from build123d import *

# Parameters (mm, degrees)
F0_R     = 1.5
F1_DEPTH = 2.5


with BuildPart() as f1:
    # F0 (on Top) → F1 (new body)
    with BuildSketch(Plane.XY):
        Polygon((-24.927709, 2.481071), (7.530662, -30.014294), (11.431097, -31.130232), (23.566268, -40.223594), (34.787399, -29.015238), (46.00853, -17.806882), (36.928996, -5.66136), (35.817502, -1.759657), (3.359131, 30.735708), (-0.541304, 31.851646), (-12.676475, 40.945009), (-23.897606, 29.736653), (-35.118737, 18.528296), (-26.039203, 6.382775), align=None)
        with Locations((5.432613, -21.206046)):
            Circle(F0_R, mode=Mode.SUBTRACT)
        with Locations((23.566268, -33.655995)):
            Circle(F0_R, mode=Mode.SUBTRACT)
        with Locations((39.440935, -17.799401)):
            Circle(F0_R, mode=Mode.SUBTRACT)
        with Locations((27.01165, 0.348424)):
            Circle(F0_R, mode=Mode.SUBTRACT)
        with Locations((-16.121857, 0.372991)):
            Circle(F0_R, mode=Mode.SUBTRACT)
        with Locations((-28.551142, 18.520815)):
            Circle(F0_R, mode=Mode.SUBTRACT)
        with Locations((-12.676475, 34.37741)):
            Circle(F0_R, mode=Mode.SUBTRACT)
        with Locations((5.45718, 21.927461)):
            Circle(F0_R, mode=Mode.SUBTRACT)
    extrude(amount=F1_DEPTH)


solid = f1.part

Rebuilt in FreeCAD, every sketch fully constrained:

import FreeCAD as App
import Part
import Sketcher

doc = App.newDocument("Part")
body = doc.addObject("PartDesign::Body", "Body")

sketch1 = body.newObject("Sketcher::SketchObject", "Sketch")
sketch1.AttachmentSupport = (doc.getObject("XY_Plane"), [""])
sketch1.MapMode = "FlatFace"
sketch1.addGeometry(Part.LineSegment(App.Vector(-24.9, 2.5, 0), App.Vector(7.5, -30, 0)), False)
sketch1.addGeometry(Part.LineSegment(App.Vector(7.5, -30, 0), App.Vector(11.4, -31.1, 0)), False)
sketch1.addGeometry(Part.LineSegment(App.Vector(11.4, -31.1, 0), App.Vector(23.6, -40.2, 0)), False)
sketch1.addGeometry(Part.LineSegment(App.Vector(23.6, -40.2, 0), App.Vector(46, -17.8, 0)), False)
sketch1.addGeometry(Part.LineSegment(App.Vector(46, -17.8, 0), App.Vector(36.9, -5.7, 0)), False)
sketch1.addGeometry(Part.LineSegment(App.Vector(36.9, -5.7, 0), App.Vector(35.8, -1.8, 0)), False)
sketch1.addGeometry(Part.LineSegment(App.Vector(35.8, -1.8, 0), App.Vector(3.4, 30.7, 0)), False)
sketch1.addGeometry(Part.LineSegment(App.Vector(3.4, 30.7, 0), App.Vector(-0.5, 31.9, 0)), False)
sketch1.addGeometry(Part.LineSegment(App.Vector(-0.5, 31.9, 0), App.Vector(-12.7, 40.9, 0)), False)
sketch1.addGeometry(Part.LineSegment(App.Vector(-12.7, 40.9, 0), App.Vector(-23.9, 29.7, 0)), False)
sketch1.addGeometry(Part.LineSegment(App.Vector(-23.9, 29.7, 0), App.Vector(-35.1, 18.5, 0)), False)
sketch1.addGeometry(Part.LineSegment(App.Vector(-35.1, 18.5, 0), App.Vector(-26, 6.4, 0)), False)
sketch1.addGeometry(Part.LineSegment(App.Vector(-26, 6.4, 0), App.Vector(-24.9, 2.5, 0)), False)
sketch1.addGeometry(Part.Circle(App.Vector(5.4, -21.2, 0), App.Vector(0, 0, 1), 1.5), False)
sketch1.addGeometry(Part.Circle(App.Vector(23.6, -33.7, 0), App.Vector(0, 0, 1), 1.5), False)
sketch1.addGeometry(Part.Circle(App.Vector(39.4, -17.8, 0), App.Vector(0, 0, 1), 1.5), False)
sketch1.addGeometry(Part.Circle(App.Vector(27, 0.3, 0), App.Vector(0, 0, 1), 1.5), False)
sketch1.addGeometry(Part.Circle(App.Vector(-16.1, 0.4, 0), App.Vector(0, 0, 1), 1.5), False)
sketch1.addGeometry(Part.Circle(App.Vector(-28.6, 18.5, 0), App.Vector(0, 0, 1), 1.5), False)
sketch1.addGeometry(Part.Circle(App.Vector(-12.7, 34.4, 0), App.Vector(0, 0, 1), 1.5), False)
sketch1.addGeometry(Part.Circle(App.Vector(5.5, 21.9, 0), App.Vector(0, 0, 1), 1.5), False)
sketch1.addConstraint(Sketcher.Constraint("Coincident", 0, 2, 1, 1))
sketch1.addConstraint(Sketcher.Constraint("Coincident", 1, 2, 2, 1))
sketch1.addConstraint(Sketcher.Constraint("Coincident", 2, 2, 3, 1))
sketch1.addConstraint(Sketcher.Constraint("Coincident", 3, 2, 4, 1))
sketch1.addConstraint(Sketcher.Constraint("Coincident", 4, 2, 5, 1))
sketch1.addConstraint(Sketcher.Constraint("Coincident", 5, 2, 6, 1))
sketch1.addConstraint(Sketcher.Constraint("Coincident", 6, 2, 7, 1))
sketch1.addConstraint(Sketcher.Constraint("Coincident", 7, 2, 8, 1))
sketch1.addConstraint(Sketcher.Constraint("Coincident", 8, 2, 9, 1))
sketch1.addConstraint(Sketcher.Constraint("Coincident", 9, 2, 10, 1))
sketch1.addConstraint(Sketcher.Constraint("Coincident", 10, 2, 11, 1))
sketch1.addConstraint(Sketcher.Constraint("Coincident", 11, 2, 12, 1))
sketch1.addConstraint(Sketcher.Constraint("Coincident", 12, 2, 0, 1))
sketch1.addConstraint(Sketcher.Constraint("Equal", 13, 14))
sketch1.addConstraint(Sketcher.Constraint("Equal", 14, 15))
sketch1.addConstraint(Sketcher.Constraint("Equal", 15, 16))
sketch1.addConstraint(Sketcher.Constraint("Equal", 16, 17))
sketch1.addConstraint(Sketcher.Constraint("Equal", 17, 18))
sketch1.addConstraint(Sketcher.Constraint("Equal", 18, 19))
sketch1.addConstraint(Sketcher.Constraint("Equal", 19, 20))
sketch1.addConstraint(Sketcher.Constraint("Perpendicular", 0, 3))
sketch1.addConstraint(Sketcher.Constraint("Perpendicular", 3, 6))
sketch1.addConstraint(Sketcher.Constraint("Parallel", 1, 7))
sketch1.addConstraint(Sketcher.Constraint("Parallel", 2, 8))
sketch1.addConstraint(Sketcher.Constraint("Perpendicular", 6, 9))
sketch1.addConstraint(Sketcher.Constraint("Parallel", 9, 10))
sketch1.addConstraint(Sketcher.Constraint("Parallel", 4, 11))
sketch1.addConstraint(Sketcher.Constraint("Parallel", 5, 12))
sketch1.addConstraint(Sketcher.Constraint("Vertical", 14, 3, 2, 2))
sketch1.addConstraint(Sketcher.Constraint("Vertical", 19, 3, 8, 2))
sketch1.addConstraint(Sketcher.Constraint("Equal", 2, 4))
sketch1.addConstraint(Sketcher.Constraint("Equal", 1, 5))
sketch1.addConstraint(Sketcher.Constraint("Equal", 0, 6))
sketch1.addConstraint(Sketcher.Constraint("Equal", 5, 7))
sketch1.addConstraint(Sketcher.Constraint("Equal", 4, 8))
sketch1.addConstraint(Sketcher.Constraint("Equal", 9, 10))
sketch1.addConstraint(Sketcher.Constraint("Equal", 8, 11))
sketch1.addConstraint(Sketcher.Constraint("Diameter", 13, 3.0))
sketch1.addConstraint(Sketcher.Constraint("DistanceY", 15, 3, -1, 1, 17.799401))
sketch1.addConstraint(Sketcher.Constraint("DistanceX", -1, 1, 5, 2, 35.817502))
sketch1.addConstraint(Sketcher.Constraint("DistanceY", 14, 3, 0, 2, 3.641701))
sketch1.addConstraint(Sketcher.Constraint("DistanceY", 2, 2, 14, 3, 6.567599))
sketch1.addConstraint(Sketcher.Constraint("DistanceY", 6, 2, 19, 3, 3.641702))
sketch1.addConstraint(Sketcher.Constraint("DistanceX", 9, 2, 7, 2, 23.356302))
sketch1.addConstraint(Sketcher.Constraint("Distance", 3, 31.72009))
sketch1.addConstraint(Sketcher.Constraint("DistanceX", -1, 1, 14, 3, 23.566268))
sketch1.addConstraint(Sketcher.Constraint("DistanceX", -1, 1, 16, 3, 27.01165))
sketch1.addConstraint(Sketcher.Constraint("DistanceY", -1, 1, 17, 3, 0.372991))
sketch1.addConstraint(Sketcher.Constraint("DistanceX", 18, 3, -1, 1, 28.551142))
sketch1.addConstraint(Sketcher.Constraint("DistanceY", -1, 1, 19, 3, 34.37741))
sketch1.addConstraint(Sketcher.Constraint("DistanceX", -1, 1, 20, 3, 5.45718))
sketch1.addConstraint(Sketcher.Constraint("DistanceY", -1, 1, 20, 3, 21.927461))
sketch1.addConstraint(Sketcher.Constraint("DistanceY", 1, 2, -1, 1, 31.130232))
sketch1.addConstraint(Sketcher.Constraint("DistanceX", -1, 1, 3, 2, 46.00853))
sketch1.addConstraint(Sketcher.Constraint("DistanceY", 4, 2, -1, 1, 5.66136))
sketch1.addConstraint(Sketcher.Constraint("DistanceX", -1, 1, 6, 2, 3.359131))
sketch1.addConstraint(Sketcher.Constraint("DistanceX", 12, 2, -1, 1, 24.927709))
sketch1.addConstraint(Sketcher.Constraint("DistanceY", 14, 3, 13, 3, 12.449949))
sketch1.addConstraint(Sketcher.Constraint("DistanceY", 13, 3, 16, 3, 21.55447))
sketch1.addConstraint(Sketcher.Constraint("DistanceX", 17, 3, 13, 3, 21.55447))
sketch1.addConstraint(Sketcher.Constraint("DistanceY", 13, 3, 18, 3, 39.726861))
sketch1.addConstraint(Sketcher.Constraint("DistanceX", 17, 3, 19, 3, 3.445382))
sketch1.addConstraint(Sketcher.Constraint("DistanceX", 19, 3, 15, 3, 52.11741))
pad1 = body.newObject("PartDesign::Pad", "Pad")
pad1.Profile = sketch1
pad1.Length = 2.5

doc.recompute()
